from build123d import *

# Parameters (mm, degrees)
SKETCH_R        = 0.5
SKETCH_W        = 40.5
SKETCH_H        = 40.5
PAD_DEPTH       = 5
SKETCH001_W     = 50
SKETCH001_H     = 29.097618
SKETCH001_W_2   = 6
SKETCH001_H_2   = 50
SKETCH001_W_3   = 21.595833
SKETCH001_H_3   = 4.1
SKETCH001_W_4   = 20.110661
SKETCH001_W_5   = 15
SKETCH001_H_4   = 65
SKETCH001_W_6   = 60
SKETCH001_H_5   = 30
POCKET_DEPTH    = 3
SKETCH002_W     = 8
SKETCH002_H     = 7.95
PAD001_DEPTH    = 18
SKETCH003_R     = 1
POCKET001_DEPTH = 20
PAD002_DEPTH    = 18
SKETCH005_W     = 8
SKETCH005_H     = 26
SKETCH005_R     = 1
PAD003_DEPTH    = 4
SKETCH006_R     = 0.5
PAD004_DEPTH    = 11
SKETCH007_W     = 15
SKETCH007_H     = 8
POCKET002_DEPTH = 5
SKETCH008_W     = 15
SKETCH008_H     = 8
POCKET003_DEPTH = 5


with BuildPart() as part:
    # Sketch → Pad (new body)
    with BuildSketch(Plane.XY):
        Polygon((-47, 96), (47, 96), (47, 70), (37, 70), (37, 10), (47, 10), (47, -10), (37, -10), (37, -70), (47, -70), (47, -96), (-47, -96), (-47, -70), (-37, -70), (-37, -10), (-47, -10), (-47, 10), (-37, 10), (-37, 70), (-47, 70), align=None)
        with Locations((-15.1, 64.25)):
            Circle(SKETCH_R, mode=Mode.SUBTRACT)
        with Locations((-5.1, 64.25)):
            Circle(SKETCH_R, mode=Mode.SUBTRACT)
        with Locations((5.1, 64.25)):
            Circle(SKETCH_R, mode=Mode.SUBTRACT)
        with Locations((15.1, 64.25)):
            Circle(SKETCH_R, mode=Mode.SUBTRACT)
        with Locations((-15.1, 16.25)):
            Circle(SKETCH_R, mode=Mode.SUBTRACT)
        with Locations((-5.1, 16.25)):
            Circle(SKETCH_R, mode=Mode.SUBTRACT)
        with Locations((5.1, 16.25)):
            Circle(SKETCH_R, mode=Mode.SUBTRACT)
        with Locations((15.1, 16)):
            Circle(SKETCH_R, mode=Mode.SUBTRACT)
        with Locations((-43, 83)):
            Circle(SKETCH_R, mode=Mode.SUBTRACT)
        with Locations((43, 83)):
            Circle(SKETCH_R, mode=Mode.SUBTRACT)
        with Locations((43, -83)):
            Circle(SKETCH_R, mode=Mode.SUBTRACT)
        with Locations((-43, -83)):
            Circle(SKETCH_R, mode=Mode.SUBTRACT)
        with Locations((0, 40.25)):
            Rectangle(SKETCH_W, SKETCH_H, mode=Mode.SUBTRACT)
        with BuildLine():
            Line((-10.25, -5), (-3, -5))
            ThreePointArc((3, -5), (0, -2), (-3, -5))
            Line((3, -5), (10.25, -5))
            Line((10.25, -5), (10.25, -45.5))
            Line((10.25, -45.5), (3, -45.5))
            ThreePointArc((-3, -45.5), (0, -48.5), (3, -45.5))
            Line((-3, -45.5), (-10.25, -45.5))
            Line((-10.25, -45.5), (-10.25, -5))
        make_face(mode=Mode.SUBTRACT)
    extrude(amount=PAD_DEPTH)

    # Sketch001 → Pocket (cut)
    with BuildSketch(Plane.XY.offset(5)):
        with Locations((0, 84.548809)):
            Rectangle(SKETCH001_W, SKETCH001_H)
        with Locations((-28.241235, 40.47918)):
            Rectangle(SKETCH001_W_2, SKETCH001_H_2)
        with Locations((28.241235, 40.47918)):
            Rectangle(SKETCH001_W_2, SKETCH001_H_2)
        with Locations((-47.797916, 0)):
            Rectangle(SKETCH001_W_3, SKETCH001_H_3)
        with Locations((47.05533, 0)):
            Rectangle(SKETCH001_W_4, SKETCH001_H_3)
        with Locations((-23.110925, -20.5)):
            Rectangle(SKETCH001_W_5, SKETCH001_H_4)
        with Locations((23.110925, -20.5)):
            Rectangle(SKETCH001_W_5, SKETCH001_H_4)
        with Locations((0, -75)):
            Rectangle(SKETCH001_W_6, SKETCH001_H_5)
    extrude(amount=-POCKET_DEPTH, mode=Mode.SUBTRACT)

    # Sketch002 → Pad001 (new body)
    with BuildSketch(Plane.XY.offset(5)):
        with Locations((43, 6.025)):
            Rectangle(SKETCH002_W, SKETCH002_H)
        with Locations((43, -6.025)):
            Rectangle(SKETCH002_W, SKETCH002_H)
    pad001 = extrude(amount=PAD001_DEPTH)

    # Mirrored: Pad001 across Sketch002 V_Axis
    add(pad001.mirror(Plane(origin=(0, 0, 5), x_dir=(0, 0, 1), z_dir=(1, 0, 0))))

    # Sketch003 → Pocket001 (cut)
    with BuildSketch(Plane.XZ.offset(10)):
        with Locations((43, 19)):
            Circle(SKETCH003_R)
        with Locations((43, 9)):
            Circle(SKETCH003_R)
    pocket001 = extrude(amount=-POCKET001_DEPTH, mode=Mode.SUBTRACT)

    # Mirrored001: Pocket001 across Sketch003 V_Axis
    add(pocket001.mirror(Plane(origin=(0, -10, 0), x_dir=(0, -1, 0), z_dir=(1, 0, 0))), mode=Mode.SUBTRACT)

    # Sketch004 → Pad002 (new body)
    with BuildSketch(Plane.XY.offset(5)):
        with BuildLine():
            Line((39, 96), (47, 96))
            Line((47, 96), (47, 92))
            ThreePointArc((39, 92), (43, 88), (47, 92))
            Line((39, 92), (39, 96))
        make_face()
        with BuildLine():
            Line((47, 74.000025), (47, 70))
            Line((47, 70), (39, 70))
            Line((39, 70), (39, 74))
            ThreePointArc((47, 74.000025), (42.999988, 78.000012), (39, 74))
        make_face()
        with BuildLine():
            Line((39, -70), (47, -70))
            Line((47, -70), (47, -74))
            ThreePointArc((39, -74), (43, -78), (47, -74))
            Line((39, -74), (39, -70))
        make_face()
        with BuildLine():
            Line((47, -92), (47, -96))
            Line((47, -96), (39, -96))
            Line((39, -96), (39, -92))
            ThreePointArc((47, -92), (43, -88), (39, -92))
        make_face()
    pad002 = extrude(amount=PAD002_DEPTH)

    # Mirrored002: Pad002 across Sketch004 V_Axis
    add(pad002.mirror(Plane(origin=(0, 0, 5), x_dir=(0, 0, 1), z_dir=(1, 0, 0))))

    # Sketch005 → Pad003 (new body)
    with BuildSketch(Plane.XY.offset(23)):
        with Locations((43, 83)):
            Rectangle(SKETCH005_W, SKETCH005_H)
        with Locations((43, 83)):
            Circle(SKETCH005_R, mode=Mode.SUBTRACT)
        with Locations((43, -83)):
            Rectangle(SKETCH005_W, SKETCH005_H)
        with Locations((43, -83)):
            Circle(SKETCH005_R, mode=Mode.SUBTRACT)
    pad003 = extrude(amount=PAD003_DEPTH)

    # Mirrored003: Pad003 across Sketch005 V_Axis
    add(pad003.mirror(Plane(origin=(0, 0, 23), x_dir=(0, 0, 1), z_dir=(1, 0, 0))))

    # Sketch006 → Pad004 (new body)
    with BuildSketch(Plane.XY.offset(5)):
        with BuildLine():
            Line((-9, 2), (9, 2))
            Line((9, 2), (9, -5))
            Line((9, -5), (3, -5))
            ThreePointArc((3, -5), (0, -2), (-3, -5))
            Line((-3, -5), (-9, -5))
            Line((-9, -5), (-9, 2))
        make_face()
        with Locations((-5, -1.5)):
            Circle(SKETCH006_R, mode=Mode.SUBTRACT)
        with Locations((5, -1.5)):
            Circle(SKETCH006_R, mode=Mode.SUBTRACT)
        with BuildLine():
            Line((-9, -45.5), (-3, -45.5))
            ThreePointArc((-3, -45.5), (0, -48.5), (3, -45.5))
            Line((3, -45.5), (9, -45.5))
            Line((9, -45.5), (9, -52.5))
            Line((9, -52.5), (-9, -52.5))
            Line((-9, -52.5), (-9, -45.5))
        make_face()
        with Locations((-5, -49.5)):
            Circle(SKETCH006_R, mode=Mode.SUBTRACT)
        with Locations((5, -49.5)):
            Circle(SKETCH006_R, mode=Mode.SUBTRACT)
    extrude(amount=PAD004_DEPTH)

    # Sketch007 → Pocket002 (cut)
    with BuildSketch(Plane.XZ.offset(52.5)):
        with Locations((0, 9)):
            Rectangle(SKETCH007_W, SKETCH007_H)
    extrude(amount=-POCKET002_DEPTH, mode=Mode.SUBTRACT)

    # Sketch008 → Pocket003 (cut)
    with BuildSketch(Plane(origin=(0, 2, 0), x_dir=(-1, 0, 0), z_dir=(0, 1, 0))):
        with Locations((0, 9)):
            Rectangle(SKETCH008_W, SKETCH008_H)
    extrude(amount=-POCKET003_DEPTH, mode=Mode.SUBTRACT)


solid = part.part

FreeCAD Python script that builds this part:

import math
import FreeCAD as App
import Part
import Sketcher
from FreeCAD import Vector

doc = App.newDocument("Part")
body = doc.addObject("PartDesign::Body", "Body")

sketch1 = body.newObject("Sketcher::SketchObject", "Sketch")
sketch1.AttachmentSupport = (doc.getObject("XY_Plane"), [""])
sketch1.MapMode = "FlatFace"
sketch1.addGeometry([
    Part.LineSegment(Vector(47, 96, 0), Vector(-47, 96, 0)),
    Part.LineSegment(Vector(-47, 96, 0), Vector(-47, 70, 0)),
    Part.LineSegment(Vector(-47, 70, 0), Vector(-37, 70, 0)),
    Part.LineSegment(Vector(-37, 70, 0), Vector(-37, 10, 0)),
    Part.LineSegment(Vector(-37, 10, 0), Vector(-47, 10, 0)),
    Part.LineSegment(Vector(-47, 10, 0), Vector(-47, -10, 0)),
    Part.LineSegment(Vector(-47, -10, 0), Vector(-37, -10, 0)),
    Part.LineSegment(Vector(-37, -10, 0), Vector(-37, -70, 0)),
    Part.LineSegment(Vector(-37, -70, 0), Vector(-47, -70, 0)),
    Part.LineSegment(Vector(-47, -70, 0), Vector(-47, -96, 0)),
    Part.LineSegment(Vector(-47, -96, 0), Vector(47, -96, 0)),
    Part.LineSegment(Vector(47, -96, 0), Vector(47, -70, 0)),
    Part.LineSegment(Vector(47, -70, 0), Vector(37, -70, 0)),
    Part.LineSegment(Vector(37, -70, 0), Vector(37, -10, 0)),
    Part.LineSegment(Vector(37, -10, 0), Vector(47, -10, 0)),
    Part.LineSegment(Vector(47, -10, 0), Vector(47, 10, 0)),
    Part.LineSegment(Vector(47, 10, 0), Vector(37, 10, 0)),
    Part.LineSegment(Vector(37, 10, 0), Vector(37, 70, 0)),
    Part.LineSegment(Vector(37, 70, 0), Vector(47, 70, 0)),
    Part.LineSegment(Vector(47, 70, 0), Vector(47, 96, 0)),
    Part.Circle(Vector(43, -83, 0), Vector(0, 0, 1), 0.5),
    Part.Circle(Vector(-43, -83, 0), Vector(0, 0, 1), 0.5),
    Part.LineSegment(Vector(-10.2, -5, 0), Vector(-3, -5, 0)),
    Part.ArcOfCircle(Part.Circle(Vector(0, -5, 0), Vector(0, 0, 1), 3), math.radians(0), math.radians(180)),
    Part.LineSegment(Vector(3, -5, 0), Vector(10.2, -5, 0)),
    Part.LineSegment(Vector(10.2, -5, 0), Vector(10.2, -45.5, 0)),
    Part.LineSegment(Vector(10.2, -45.5, 0), Vector(3, -45.5, 0)),
    Part.ArcOfCircle(Part.Circle(Vector(0, -45.5, 0), Vector(0, 0, 1), 3), math.radians(180), math.radians(360)),
    Part.LineSegment(Vector(-3, -45.5, 0), Vector(-10.2, -45.5, 0)),
    Part.LineSegment(Vector(-10.2, -45.5, 0), Vector(-10.2, -5, 0)),
    Part.Circle(Vector(15.1, 16, 0), Vector(0, 0, 1), 0.5),
    Part.Circle(Vector(5.1, 16.2, 0), Vector(0, 0, 1), 0.5),
    Part.Circle(Vector(43, 83, 0), Vector(0, 0, 1), 0.5),
    Part.Circle(Vector(15.1, 64.2, 0), Vector(0, 0, 1), 0.5),
    Part.Circle(Vector(5.1, 64.2, 0), Vector(0, 0, 1), 0.5),
    Part.Circle(Vector(-5.1, 16.2, 0), Vector(0, 0, 1), 0.5),
    Part.Circle(Vector(-15.1, 16.2, 0), Vector(0, 0, 1), 0.5),
    Part.LineSegment(Vector(-20.2, 20, 0), Vector(-20.2, 60.5, 0)),
    Part.LineSegment(Vector(-20.2, 60.5, 0), Vector(20.2, 60.5, 0)),
    Part.LineSegment(Vector(20.2, 60.5, 0), Vector(20.2, 20, 0)),
    Part.LineSegment(Vector(20.2, 20, 0), Vector(-20.2, 20, 0)),
    Part.Circle(Vector(-5.1, 64.2, 0), Vector(0, 0, 1), 0.5),
    Part.Circle(Vector(-15.1, 64.2, 0), Vector(0, 0, 1), 0.5),
    Part.Circle(Vector(-43, 83, 0), Vector(0, 0, 1), 0.5),
], False)
sketch1.addConstraint([
    Sketcher.Constraint("Coincident", 0, 2, 1, 1),
    Sketcher.Constraint("Coincident", 1, 2, 2, 1),
    Sketcher.Constraint("Coincident", 2, 2, 3, 1),
    Sketcher.Constraint("Coincident", 3, 2, 4, 1),
    Sketcher.Constraint("Coincident", 4, 2, 5, 1),
    Sketcher.Constraint("Coincident", 5, 2, 6, 1),
    Sketcher.Constraint("Coincident", 6, 2, 7, 1),
    Sketcher.Constraint("Coincident", 7, 2, 8, 1),
    Sketcher.Constraint("Coincident", 8, 2, 9, 1),
    Sketcher.Constraint("Coincident", 9, 2, 10, 1),
    Sketcher.Constraint("Coincident", 10, 2, 11, 1),
    Sketcher.Constraint("Coincident", 11, 2, 12, 1),
    Sketcher.Constraint("Coincident", 12, 2, 13, 1),
    Sketcher.Constraint("Coincident", 13, 2, 14, 1),
    Sketcher.Constraint("Coincident", 14, 2, 15, 1),
    Sketcher.Constraint("Coincident", 15, 2, 16, 1),
    Sketcher.Constraint("Coincident", 16, 2, 17, 1),
    Sketcher.Constraint("Coincident", 17, 2, 18, 1),
    Sketcher.Constraint("Coincident", 18, 2, 19, 1),
    Sketcher.Constraint("Coincident", 19, 2, 0, 1),
    Sketcher.Constraint("Coincident", 22, 2, 23, 2),
    Sketcher.Constraint("Coincident", 23, 1, 24, 1),
    Sketcher.Constraint("Coincident", 24, 2, 25, 1),
    Sketcher.Constraint("Coincident", 25, 2, 26, 1),
    Sketcher.Constraint("Coincident", 26, 2, 27, 2),
    Sketcher.Constraint("Coincident", 27, 1, 28, 1),
    Sketcher.Constraint("Coincident", 28, 2, 29, 1),
    Sketcher.Constraint("Coincident", 29, 2, 22, 1),
    Sketcher.Constraint("Coincident", 37, 2, 38, 1),
    Sketcher.Constraint("Coincident", 38, 2, 39, 1),
    Sketcher.Constraint("Coincident", 39, 2, 40, 1),
    Sketcher.Constraint("Coincident", 40, 2, 37, 1),
    Sketcher.Constraint("Horizontal", 0),
    Sketcher.Constraint("Vertical", 1),
    Sketcher.Constraint("Horizontal", 2),
    Sketcher.Constraint("Vertical", 3),
    Sketcher.Constraint("Horizontal", 4),
    Sketcher.Constraint("Vertical", 5),
    Sketcher.Constraint("Horizontal", 6),
    Sketcher.Constraint("Vertical", 7),
    Sketcher.Constraint("Horizontal", 8),
    Sketcher.Constraint("Vertical", 9),
    Sketcher.Constraint("Horizontal", 10),
    Sketcher.Constraint("Vertical", 11),
    Sketcher.Constraint("Horizontal", 12),
    Sketcher.Constraint("Vertical", 13),
    Sketcher.Constraint("Horizontal", 14),
    Sketcher.Constraint("Vertical", 15),
    Sketcher.Constraint("Horizontal", 16),
    Sketcher.Constraint("Vertical", 17),
    Sketcher.Constraint("Horizontal", 18),
    Sketcher.Constraint("Vertical", 19),
    Sketcher.Constraint("Horizontal", 22),
    Sketcher.Constraint("Horizontal", 24),
    Sketcher.Constraint("Vertical", 25),
    Sketcher.Constraint("Horizontal", 26),
    Sketcher.Constraint("Horizontal", 28),
    Sketcher.Constraint("Vertical", 29),
    Sketcher.Constraint("Vertical", 37),
    Sketcher.Constraint("Horizontal", 38),
    Sketcher.Constraint("Vertical", 39),
    Sketcher.Constraint("Horizontal", 40),
    Sketcher.Constraint("Equal", 20, 21),
    Sketcher.Constraint("Equal", 23, 27),
    Sketcher.Constraint("Equal", 21, 30),
    Sketcher.Constraint("Equal", 30, 31),
    Sketcher.Constraint("Equal", 31, 32),
    Sketcher.Constraint("Equal", 32, 33),
    Sketcher.Constraint("Equal", 33, 34),
    Sketcher.Constraint("Equal", 34, 35),
    Sketcher.Constraint("Equal", 35, 36),
    Sketcher.Constraint("Equal", 36, 41),
    Sketcher.Constraint("Equal", 41, 42),
    Sketcher.Constraint("Equal", 42, 43),
    Sketcher.Constraint("Symmetric", 21, 3, 32, 3, -1, 1),
    Sketcher.Constraint("Symmetric", 20, 3, 43, 3, -1, 1),
    Sketcher.Constraint("Symmetric", 0, 2, 10, 2, -1, 1),
    Sketcher.Constraint("Symmetric", 2, 2, 12, 2, -1, 1),
    Sketcher.Constraint("Symmetric", 4, 2, 14, 2, -1, 1),
    Sketcher.Constraint("Symmetric", 6, 2, 16, 2, -1, 1),
    Sketcher.Constraint("Symmetric", 8, 2, 18, 2, -1, 1),
    Sketcher.Constraint("Symmetric", 20, 3, 21, 3, -2),
    Sketcher.Constraint("Symmetric", 31, 3, 35, 3, -2),
    Sketcher.Constraint("Symmetric", 34, 3, 41, 3, -2),
    Sketcher.Constraint("Symmetric", 33, 3, 42, 3, -2),
    Sketcher.Constraint("Symmetric", 8, 2, 11, 2, -2),
    Sketcher.Constraint("Symmetric", 6, 2, 13, 2, -2),
    Sketcher.Constraint("Symmetric", 22, 2, 23, 1, -2),
    Sketcher.Constraint("Symmetric", 26, 2, 27, 1, -2),
    Sketcher.Constraint("Horizontal", 33, 3, 34, 3),
    Sketcher.Constraint("Horizontal", 35, 3, 36, 3),
    Sketcher.Constraint("Horizontal", 23, 3, 22, 2),
    Sketcher.Constraint("Horizontal", 27, 3, 25, 2),
    Sketcher.Constraint("Vertical", 30, 3, 33, 3),
    Sketcher.Constraint("Vertical", 31, 3, 34, 3),
    Sketcher.Constraint("Vertical", 36, 3, 42, 3),
    Sketcher.Constraint("Vertical", 1, 2, 4, 2),
    Sketcher.Constraint("Equal", 22, 24),
    Sketcher.Constraint("Equal", 40, 25),
    Sketcher.Constraint("Equal", 29, 37),
    Sketcher.Constraint("Diameter", 20, 1.0),
    Sketcher.Constraint("Radius", 23, 3.0),
    Sketcher.Constraint("DistanceX", 0, 2, 0, 1, 94.0),
    Sketcher.Constraint("DistanceX", 2, 1, 2, 2, 10.0),
    Sketcher.Constraint("DistanceY", 1, 2, 1, 1, 26.0),
    Sketcher.Constraint("DistanceY", 3, 2, 3, 1, 60.0),
    Sketcher.Constraint("DistanceY", 5, 2, 5, 1, 20.0),
    Sketcher.Constraint("DistanceX", 38, 1, 38, 2, 40.5),
    Sketcher.Constraint("DistanceX", -1, 1, 20, 3, 43.0),
    Sketcher.Constraint("DistanceY", 20, 3, -1, 1, 83.0),
    Sketcher.Constraint("DistanceY", 23, 3, -1, 1, 5.0),
    Sketcher.Constraint("DistanceY", -1, 1, 30, 3, 16.0),
    Sketcher.Constraint("DistanceY", -1, 1, 39, 2, 20.0),
    Sketcher.Constraint("DistanceX", 31, 3, 30, 3, 10.0),
    Sketcher.Constraint("DistanceY", 31, 3, 33, 3, 48.0),
    Sketcher.Constraint("DistanceX", 24, 2, 39, 2, 10.0),
    Sketcher.Constraint("DistanceX", 40, 2, 29, 2, 10.0),
    Sketcher.Constraint("DistanceX", -1, 1, 30, 3, 15.1),
    Sketcher.Constraint("DistanceY", -1, 1, 31, 3, 16.25),
])
pad1 = body.newObject("PartDesign::Pad", "Pad")
pad1.Profile = sketch1
pad1.Length = 5

sketch2 = body.newObject("Sketcher::SketchObject", "Sketch001")
sketch2.AttachmentSupport = (doc.getObject("XY_Plane"), [""])
sketch2.MapMode = "FlatFace"
sketch2.AttachmentOffset = App.Placement(Vector(0, 0, 5), App.Rotation())
sketch2.addGeometry([
    Part.LineSegment(Vector(-25, 99.1, 0), Vector(-25, 70, 0)),
    Part.LineSegment(Vector(-25, 70, 0), Vector(25, 70, 0)),
    Part.LineSegment(Vector(25, 70, 0), Vector(25, 99.1, 0)),
    Part.LineSegment(Vector(25, 99.1, 0), Vector(-25, 99.1, 0)),
    Part.LineSegment(Vector(-31.2, 65.5, 0), Vector(-31.2, 15.5, 0)),
    Part.LineSegment(Vector(-31.2, 15.5, 0), Vector(-25.2, 15.5, 0)),
    Part.LineSegment(Vector(-25.2, 15.5, 0), Vector(-25.2, 65.5, 0)),
    Part.LineSegment(Vector(-25.2, 65.5, 0), Vector(-31.2, 65.5, 0)),
    Part.LineSegment(Vector(25.2, 65.5, 0), Vector(25.2, 15.5, 0)),
    Part.LineSegment(Vector(25.2, 15.5, 0), Vector(31.2, 15.5, 0)),
    Part.LineSegment(Vector(31.2, 15.5, 0), Vector(31.2, 65.5, 0)),
    Part.LineSegment(Vector(31.2, 65.5, 0), Vector(25.2, 65.5, 0)),
    Part.LineSegment(Vector(-58.6, 2, 0), Vector(-58.6, -2, 0)),
    Part.LineSegment(Vector(-58.6, -2, 0), Vector(-37, -2, 0)),
    Part.LineSegment(Vector(-37, -2, 0), Vector(-37, 2, 0)),
    Part.LineSegment(Vector(-37, 2, 0), Vector(-58.6, 2, 0)),
    Part.LineSegment(Vector(37, 2, 0), Vector(37, -2, 0)),
    Part.LineSegment(Vector(37, -2, 0), Vector(57.1, -2, 0)),
    Part.LineSegment(Vector(57.1, -2, 0), Vector(57.1, 2, 0)),
    Part.LineSegment(Vector(57.1, 2, 0), Vector(37, 2, 0)),
    Part.LineSegment(Vector(-30.6, 12, 0), Vector(-30.6, -53, 0)),
    Part.LineSegment(Vector(-30.6, -53, 0), Vector(-15.6, -53, 0)),
    Part.LineSegment(Vector(-15.6, -53, 0), Vector(-15.6, 12, 0)),
    Part.LineSegment(Vector(-15.6, 12, 0), Vector(-30.6, 12, 0)),
    Part.LineSegment(Vector(15.6, 12, 0), Vector(15.6, -53, 0)),
    Part.LineSegment(Vector(15.6, -53, 0), Vector(30.6, -53, 0)),
    Part.LineSegment(Vector(30.6, -53, 0), Vector(30.6, 12, 0)),
    Part.LineSegment(Vector(30.6, 12, 0), Vector(15.6, 12, 0)),
    Part.LineSegment(Vector(-30, -60, 0), Vector(-30, -90, 0)),
    Part.LineSegment(Vector(-30, -90, 0), Vector(30, -90, 0)),
    Part.LineSegment(Vector(30, -90, 0), Vector(30, -60, 0)),
    Part.LineSegment(Vector(30, -60, 0), Vector(-30, -60, 0)),
], False)
sketch2.addConstraint([
    Sketcher.Constraint("Coincident", 0, 2, 1, 1),
    Sketcher.Constraint("Coincident", 1, 2, 2, 1),
    Sketcher.Constraint("Coincident", 2, 2, 3, 1),
    Sketcher.Constraint("Coincident", 3, 2, 0, 1),
    Sketcher.Constraint("Coincident", 4, 2, 5, 1),
    Sketcher.Constraint("Coincident", 5, 2, 6, 1),
    Sketcher.Constraint("Coincident", 6, 2, 7, 1),
    Sketcher.Constraint("Coincident", 7, 2, 4, 1),
    Sketcher.Constraint("Coincident", 8, 2, 9, 1),
    Sketcher.Constraint("Coincident", 9, 2, 10, 1),
    Sketcher.Constraint("Coincident", 10, 2, 11, 1),
    Sketcher.Constraint("Coincident", 11, 2, 8, 1),
    Sketcher.Constraint("Coincident", 12, 2, 13, 1),
    Sketcher.Constraint("Coincident", 13, 2, 14, 1),
    Sketcher.Constraint("Coincident", 14, 2, 15, 1),
    Sketcher.Constraint("Coincident", 15, 2, 12, 1),
    Sketcher.Constraint("Coincident", 16, 2, 17, 1),
    Sketcher.Constraint("Coincident", 17, 2, 18, 1),
    Sketcher.Constraint("Coincident", 18, 2, 19, 1),
    Sketcher.Constraint("Coincident", 19, 2, 16, 1),
    Sketcher.Constraint("Coincident", 20, 2, 21, 1),
    Sketcher.Constraint("Coincident", 21, 2, 22, 1),
    Sketcher.Constraint("Coincident", 22, 2, 23, 1),
    Sketcher.Constraint("Coincident", 23, 2, 20, 1),
    Sketcher.Constraint("Coincident", 24, 2, 25, 1),
    Sketcher.Constraint("Coincident", 25, 2, 26, 1),
    Sketcher.Constraint("Coincident", 26, 2, 27, 1),
    Sketcher.Constraint("Coincident", 27, 2, 24, 1),
    Sketcher.Constraint("Coincident", 28, 2, 29, 1),
    Sketcher.Constraint("Coincident", 29, 2, 30, 1),
    Sketcher.Constraint("Coincident", 30, 2, 31, 1),
    Sketcher.Constraint("Coincident", 31, 2, 28, 1),
    Sketcher.Constraint("Vertical", 0),
    Sketcher.Constraint("Horizontal", 1),
    Sketcher.Constraint("Vertical", 2),
    Sketcher.Constraint("Horizontal", 3),
    Sketcher.Constraint("Vertical", 4),
    Sketcher.Constraint("Horizontal", 5),
    Sketcher.Constraint("Vertical", 6),
    Sketcher.Constraint("Horizontal", 7),
    Sketcher.Constraint("Vertical", 8),
    Sketcher.Constraint("Horizontal", 9),
    Sketcher.Constraint("Vertical", 10),
    Sketcher.Constraint("Horizontal", 11),
    Sketcher.Constraint("Vertical", 12),
    Sketcher.Constraint("Horizontal", 13),
    Sketcher.Constraint("Vertical", 14),
    Sketcher.Constraint("Horizontal", 15),
    Sketcher.Constraint("Vertical", 16),
    Sketcher.Constraint("Horizontal", 17),
    Sketcher.Constraint("Vertical", 18),
    Sketcher.Constraint("Horizontal", 19),
    Sketcher.Constraint("Vertical", 20),
    Sketcher.Constraint("Horizontal", 21),
    Sketcher.Constraint("Vertical", 22),
    Sketcher.Constraint("Horizontal", 23),
    Sketcher.Constraint("Vertical", 24),
    Sketcher.Constraint("Horizontal", 25),
    Sketcher.Constraint("Vertical", 26),
    Sketcher.Constraint("Horizontal", 27),
    Sketcher.Constraint("Vertical", 28),
    Sketcher.Constraint("Horizontal", 29),
    Sketcher.Constraint("Vertical", 30),
    Sketcher.Constraint("Horizontal", 31),
    Sketcher.Constraint("Symmetric", 14, 2, 16, 2, -1, 1),
    Sketcher.Constraint("Symmetric", 5, 2, 8, 2, -2),
    Sketcher.Constraint("Symmetric", 7, 2, 10, 2, -2),
    Sketcher.Constraint("Symmetric", 21, 2, 24, 2, -2),
    Sketcher.Constraint("Symmetric", 23, 2, 26, 2, -2),
    Sketcher.Constraint("Horizontal", 13, 2, 16, 2),
    Sketcher.Constraint("Horizontal", 15, 2, 18, 2),
    Sketcher.Constraint("Equal", 3, 4),
    Sketcher.Constraint("DistanceX", 1, 1, 1, 2, 50.0),
    Sketcher.Constraint("DistanceX", 5, 1, 5, 2, 6.0),
    Sketcher.Constraint("DistanceX", 21, 1, 21, 2, 15.0),
    Sketcher.Constraint("DistanceX", 29, 1, 29, 2, 60.0),
    Sketcher.Constraint("DistanceY", 20, 2, 20, 1, 65.0),
    Sketcher.Constraint("DistanceY", 28, 2, 28, 1, 30.0),
    Sketcher.Constraint("DistanceY", 12, 2, 12, 1, 4.1),
    Sketcher.Constraint("DistanceX", 0, 2, -1, 1, 25.0),
    Sketcher.Constraint("DistanceY", -1, 1, 0, 2, 70.0),
    Sketcher.Constraint("DistanceX", 13, 2, -1, 1, 37.0),
    Sketcher.Constraint("DistanceY", 20, 2, -1, 1, 53.0),
    Sketcher.Constraint("DistanceX", 28, 2, -1, 1, 30.0),
    Sketcher.Constraint("DistanceY", 28, 2, -1, 1, 90.0),
    Sketcher.Constraint("DistanceX", 17, 1, 17, 2, 20.110661),
    Sketcher.Constraint("DistanceX", 13, 1, 13, 2, 21.595833),
    Sketcher.Constraint("DistanceY", 0, 2, 0, 1, 29.097618),
    Sketcher.Constraint("DistanceY", -1, 1, 4, 2, 15.47918),
    Sketcher.Constraint("DistanceX", 5, 2, 8, 2, 50.48247),
    Sketcher.Constraint("DistanceX", 4, 2, 20, 2, 0.63031),
])
pocket1 = body.newObject("PartDesign::Pocket", "Pocket")
pocket1.Profile = sketch2
pocket1.Length = 3

sketch3 = body.newObject("Sketcher::SketchObject", "Sketch002")
sketch3.AttachmentSupport = (doc.getObject("XY_Plane"), [""])
sketch3.MapMode = "FlatFace"
sketch3.AttachmentOffset = App.Placement(Vector(0, 0, 5), App.Rotation())
sketch3.addGeometry([
    Part.LineSegment(Vector(39, 10, 0), Vector(39, 2, 0)),
    Part.LineSegment(Vector(39, 2, 0), Vector(47, 2, 0)),
    Part.LineSegment(Vector(47, 2, 0), Vector(47, 10, 0)),
    Part.LineSegment(Vector(47, 10, 0), Vector(39, 10, 0)),
    Part.LineSegment(Vector(39, -2, 0), Vector(39, -10, 0)),
    Part.LineSegment(Vector(39, -10, 0), Vector(47, -10, 0)),
    Part.LineSegment(Vector(47, -10, 0), Vector(47, -2, 0)),
    Part.LineSegment(Vector(47, -2, 0), Vector(39, -2, 0)),
], False)
sketch3.addConstraint([
    Sketcher.Constraint("Coincident", 0, 2, 1, 1),
    Sketcher.Constraint("Coincident", 1, 2, 2, 1),
    Sketcher.Constraint("Coincident", 2, 2, 3, 1),
    Sketcher.Constraint("Coincident", 3, 2, 0, 1),
    Sketcher.Constraint("Coincident", 4, 2, 5, 1),
    Sketcher.Constraint("Coincident", 5, 2, 6, 1),
    Sketcher.Constraint("Coincident", 6, 2, 7, 1),
    Sketcher.Constraint("Coincident", 7, 2, 4, 1),
    Sketcher.Constraint("Vertical", 0),
    Sketcher.Constraint("Horizontal", 1),
    Sketcher.Constraint("Vertical", 2),
    Sketcher.Constraint("Horizontal", 3),
    Sketcher.Constraint("Vertical", 4),
    Sketcher.Constraint("Horizontal", 5),
    Sketcher.Constraint("Vertical", 6),
    Sketcher.Constraint("Horizontal", 7),
    Sketcher.Constraint("Symmetric", 3, 2, 4, 2, -1),
    Sketcher.Constraint("Symmetric", 1, 2, 6, 2, -1),
    Sketcher.Constraint("DistanceX", 1, 1, 1, 2, 8.0),
    Sketcher.Constraint("DistanceX", -1, 1, 0, 2, 39.0),
    Sketcher.Constraint("DistanceY", -1, 1, 2, 2, 10.0),
    Sketcher.Constraint("DistanceY", 0, 2, 0, 1, 7.95),
])
pad2 = body.newObject("PartDesign::Pad", "Pad001")
pad2.Profile = sketch3
pad2.Length = 18
doc.recompute()

mirrored = body.newObject("PartDesign::Mirrored", "Mirrored")
mirrored.Originals = [pad2]
mirrored.MirrorPlane = (doc.getObject("YZ_Plane"), [""])
body.Tip = mirrored

sketch4 = body.newObject("Sketcher::SketchObject", "Sketch003")
sketch4.AttachmentSupport = (doc.getObject("XZ_Plane"), [""])
sketch4.MapMode = "FlatFace"
sketch4.AttachmentOffset = App.Placement(Vector(0, 0, 10), App.Rotation())
sketch4.addGeometry([
    Part.Circle(Vector(43, 19, 0), Vector(0, 0, 1), 1),
    Part.Circle(Vector(43, 9, 0), Vector(0, 0, 1), 1),
], False)
sketch4.addConstraint([
    Sketcher.Constraint("Equal", 0, 1),
    Sketcher.Constraint("Vertical", 0, 3, 1, 3),
    Sketcher.Constraint("Diameter", 0, 2.0),
    Sketcher.Constraint("DistanceX", -1, 1, 0, 3, 43.0),
    Sketcher.Constraint("DistanceY", -1, 1, 0, 3, 19.0),
    Sketcher.Constraint("DistanceY", -1, 1, 1, 3, 9.0),
])
pocket2 = body.newObject("PartDesign::Pocket", "Pocket001")
pocket2.Profile = sketch4
pocket2.Length = 20
doc.recompute()

mirrored2 = body.newObject("PartDesign::Mirrored", "Mirrored001")
mirrored2.Originals = [pocket2]
mirrored2.MirrorPlane = (doc.getObject("YZ_Plane"), [""])
body.Tip = mirrored2

sketch5 = body.newObject("Sketcher::SketchObject", "Sketch004")
sketch5.AttachmentSupport = (doc.getObject("XY_Plane"), [""])
sketch5.MapMode = "FlatFace"
sketch5.AttachmentOffset = App.Placement(Vector(0, 0, 5), App.Rotation())
sketch5.addGeometry([
    Part.LineSegment(Vector(47, 96, 0), Vector(39, 96, 0)),
    Part.LineSegment(Vector(39, 96, 0), Vector(39, 92, 0)),
    Part.ArcOfCircle(Part.Circle(Vector(43, 92, 0), Vector(0, 0, 1), 4), math.radians(180), math.radians(360)),
    Part.LineSegment(Vector(47, 92, 0), Vector(47, 96, 0)),
    Part.LineSegment(Vector(47, 70, 0), Vector(47, 74, 0)),
    Part.ArcOfCircle(Part.Circle(Vector(43, 74, 0), Vector(0, 0, 1), 4), math.radians(0), math.radians(180)),
    Part.LineSegment(Vector(39, 74, 0), Vector(39, 70, 0)),
    Part.LineSegment(Vector(39, 70, 0), Vector(47, 70, 0)),
    Part.LineSegment(Vector(47, -70, 0), Vector(39, -70, 0)),
    Part.LineSegment(Vector(39, -70, 0), Vector(39, -74, 0)),
    Part.ArcOfCircle(Part.Circle(Vector(43, -74, 0), Vector(0, 0, 1), 4), math.radians(180), math.radians(360)),
    Part.LineSegment(Vector(47, -74, 0), Vector(47, -70, 0)),
    Part.LineSegment(Vector(47, -96, 0), Vector(47, -92, 0)),
    Part.ArcOfCircle(Part.Circle(Vector(43, -92, 0), Vector(0, 0, 1), 4), math.radians(0), math.radians(180)),
    Part.LineSegment(Vector(39, -92, 0), Vector(39, -96, 0)),
    Part.LineSegment(Vector(39, -96, 0), Vector(47, -96, 0)),
], False)
sketch5.addConstraint([
    Sketcher.Constraint("Coincident", 0, 2, 1, 1),
    Sketcher.Constraint("Tangent", 1, 2, 2, 1),
    Sketcher.Constraint("Tangent", 2, 2, 3, 1),
    Sketcher.Constraint("Coincident", 3, 2, 0, 1),
    Sketcher.Constraint("Coincident", 4, 2, 5, 1),
    Sketcher.Constraint("Coincident", 5, 2, 6, 1),
    Sketcher.Constraint("Coincident", 6, 2, 7, 1),
    Sketcher.Constraint("Coincident", 7, 2, 4, 1),
    Sketcher.Constraint("Coincident", 8, 2, 9, 1),
    Sketcher.Constraint("Tangent", 9, 2, 10, 1),
    Sketcher.Constraint("Tangent", 10, 2, 11, 1),
    Sketcher.Constraint("Coincident", 11, 2, 8, 1),
    Sketcher.Constraint("Tangent", 12, 2, 13, 1),
    Sketcher.Constraint("Tangent", 13, 2, 14, 1),
    Sketcher.Constraint("Coincident", 14, 2, 15, 1),
    Sketcher.Constraint("Coincident", 15, 2, 12, 1),
    Sketcher.Constraint("Horizontal", 0),
    Sketcher.Constraint("Vertical", 1),
    Sketcher.Constraint("Vertical", 3),
    Sketcher.Constraint("Vertical", 4),
    Sketcher.Constraint("Vertical", 6),
    Sketcher.Constraint("Horizontal", 7),
    Sketcher.Constraint("Horizontal", 8),
    Sketcher.Constraint("Vertical", 9),
    Sketcher.Constraint("Vertical", 11),
    Sketcher.Constraint("Vertical", 12),
    Sketcher.Constraint("Vertical", 14),
    Sketcher.Constraint("Horizontal", 15),
    Sketcher.Constraint("Equal", 2, 5),
    Sketcher.Constraint("Equal", 5, 10),
    Sketcher.Constraint("Equal", 10, 13),
    Sketcher.Constraint("Symmetric", 2, 3, 13, 3, -1),
    Sketcher.Constraint("Symmetric", 6, 2, 8, 2, -1),
    Sketcher.Constraint("Vertical", 2, 3, 5, 3),
    Sketcher.Constraint("Equal", 3, 6),
    Sketcher.Constraint("Equal", 6, 9),
    Sketcher.Constraint("Equal", 11, 12),
    Sketcher.Constraint("Radius", 2, 4.0),
    Sketcher.Constraint("DistanceY", 1, 2, 1, 1, 4.0),
    Sketcher.Constraint("DistanceX", -1, 1, 2, 3, 43.0),
    Sketcher.Constraint("DistanceY", -1, 1, 2, 3, 92.0),
    Sketcher.Constraint("DistanceY", 10, 3, -1, 1, 74.0),
    Sketcher.Constraint("DistanceY", 4, 1, 4, 2, 4.000025),
    Sketcher.Constraint("DistanceY", -1, 1, 5, 3, 74.000012),
])
pad3 = body.newObject("PartDesign::Pad", "Pad002")
pad3.Profile = sketch5
pad3.Length = 18
doc.recompute()

mirrored3 = body.newObject("PartDesign::Mirrored", "Mirrored002")
mirrored3.Originals = [pad3]
mirrored3.MirrorPlane = (doc.getObject("YZ_Plane"), [""])
body.Tip = mirrored3

sketch6 = body.newObject("Sketcher::SketchObject", "Sketch005")
sketch6.AttachmentSupport = (doc.getObject("XY_Plane"), [""])
sketch6.MapMode = "FlatFace"
sketch6.AttachmentOffset = App.Placement(Vector(0, 0, 23), App.Rotation())
sketch6.addGeometry([
    Part.LineSegment(Vector(39, 96, 0), Vector(39, 70, 0)),
    Part.LineSegment(Vector(39, 70, 0), Vector(47, 70, 0)),
    Part.LineSegment(Vector(47, 70, 0), Vector(47, 96, 0)),
    Part.LineSegment(Vector(47, 96, 0), Vector(39, 96, 0)),
    Part.Circle(Vector(43, 83, 0), Vector(0, 0, 1), 1),
    Part.LineSegment(Vector(39, -70, 0), Vector(39, -96, 0)),
    Part.LineSegment(Vector(39, -96, 0), Vector(47, -96, 0)),
    Part.LineSegment(Vector(47, -96, 0), Vector(47, -70, 0)),
    Part.LineSegment(Vector(47, -70, 0), Vector(39, -70, 0)),
    Part.Circle(Vector(43, -83, 0), Vector(0, 0, 1), 1),
], False)
sketch6.addConstraint([
    Sketcher.Constraint("Coincident", 0, 2, 1, 1),
    Sketcher.Constraint("Coincident", 1, 2, 2, 1),
    Sketcher.Constraint("Coincident", 2, 2, 3, 1),
    Sketcher.Constraint("Coincident", 3, 2, 0, 1),
    Sketcher.Constraint("Coincident", 5, 2, 6, 1),
    Sketcher.Constraint("Coincident", 6, 2, 7, 1),
    Sketcher.Constraint("Coincident", 7, 2, 8, 1),
    Sketcher.Constraint("Coincident", 8, 2, 5, 1),
    Sketcher.Constraint("Vertical", 0),
    Sketcher.Constraint("Horizontal", 1),
    Sketcher.Constraint("Vertical", 2),
    Sketcher.Constraint("Horizontal", 3),
    Sketcher.Constraint("Vertical", 5),
    Sketcher.Constraint("Horizontal", 6),
    Sketcher.Constraint("Vertical", 7),
    Sketcher.Constraint("Horizontal", 8),
    Sketcher.Constraint("Equal", 4, 9),
    Sketcher.Constraint("Symmetric", 4, 3, 9, 3, -1),
    Sketcher.Constraint("Symmetric", 3, 2, 5, 2, -1),
    Sketcher.Constraint("Symmetric", 1, 2, 7, 2, -1),
    Sketcher.Constraint("Diameter", 4, 2.0),
    Sketcher.Constraint("DistanceX", 1, 1, 1, 2, 8.0),
    Sketcher.Constraint("DistanceY", 0, 2, 0, 1, 26.0),
    Sketcher.Constraint("DistanceX", -1, 1, 4, 3, 43.0),
    Sketcher.Constraint("DistanceY", -1, 1, 4, 3, 83.0),
    Sketcher.Constraint("DistanceX", -1, 1, 0, 2, 39.0),
    Sketcher.Constraint("DistanceY", -1, 1, 0, 2, 70.0),
])
pad4 = body.newObject("PartDesign::Pad", "Pad003")
pad4.Profile = sketch6
pad4.Length = 4
doc.recompute()

mirrored4 = body.newObject("PartDesign::Mirrored", "Mirrored003")
mirrored4.Originals = [pad4]
mirrored4.MirrorPlane = (doc.getObject("YZ_Plane"), [""])
body.Tip = mirrored4

sketch7 = body.newObject("Sketcher::SketchObject", "Sketch006")
sketch7.AttachmentSupport = (doc.getObject("XY_Plane"), [""])
sketch7.MapMode = "FlatFace"
sketch7.AttachmentOffset = App.Placement(Vector(0, 0, 5), App.Rotation())
sketch7.addGeometry([
    Part.LineSegment(Vector(9, 2, 0), Vector(-9, 2, 0)),
    Part.LineSegment(Vector(-9, 2, 0), Vector(-9, -5, 0)),
    Part.LineSegment(Vector(-9, -5, 0), Vector(-3, -5, 0)),
    Part.ArcOfCircle(Part.Circle(Vector(0, -5, 0), Vector(0, 0, 1), 3), math.radians(0), math.radians(180)),
    Part.LineSegment(Vector(3, -5, 0), Vector(9, -5, 0)),
    Part.LineSegment(Vector(9, -5, 0), Vector(9, 2, 0)),
    Part.Circle(Vector(5, -1.5, 0), Vector(0, 0, 1), 0.5),
    Part.Circle(Vector(-5, -1.5, 0), Vector(0, 0, 1), 0.5),
    Part.LineSegment(Vector(-3, -45.5, 0), Vector(-9, -45.5, 0)),
    Part.LineSegment(Vector(-9, -45.5, 0), Vector(-9, -52.5, 0)),
    Part.LineSegment(Vector(-9, -52.5, 0), Vector(9, -52.5, 0)),
    Part.LineSegment(Vector(9, -52.5, 0), Vector(9, -45.5, 0)),
    Part.LineSegment(Vector(9, -45.5, 0), Vector(3, -45.5, 0)),
    Part.ArcOfCircle(Part.Circle(Vector(0, -45.5, 0), Vector(0, 0, 1), 3), math.radians(180), math.radians(360)),
    Part.Circle(Vector(5, -49.5, 0), Vector(0, 0, 1), 0.5),
    Part.Circle(Vector(-5, -49.5, 0), Vector(0, 0, 1), 0.5),
], False)
sketch7.addConstraint([
    Sketcher.Constraint("Coincident", 0, 2, 1, 1),
    Sketcher.Constraint("Coincident", 1, 2, 2, 1),
    Sketcher.Constraint("Coincident", 2, 2, 3, 2),
    Sketcher.Constraint("Coincident", 3, 1, 4, 1),
    Sketcher.Constraint("Coincident", 4, 2, 5, 1),
    Sketcher.Constraint("Coincident", 5, 2, 0, 1),
    Sketcher.Constraint("Coincident", 8, 2, 9, 1),
    Sketcher.Constraint("Coincident", 9, 2, 10, 1),
    Sketcher.Constraint("Coincident", 10, 2, 11, 1),
    Sketcher.Constraint("Coincident", 11, 2, 12, 1),
    Sketcher.Constraint("Coincident", 12, 2, 13, 2),
    Sketcher.Constraint("Coincident", 13, 1, 8, 1),
    Sketcher.Constraint("Horizontal", 0),
    Sketcher.Constraint("Vertical", 1),
    Sketcher.Constraint("Horizontal", 2),
    Sketcher.Constraint("Horizontal", 4),
    Sketcher.Constraint("Vertical", 5),
    Sketcher.Constraint("Horizontal", 8),
    Sketcher.Constraint("Vertical", 9),
    Sketcher.Constraint("Horizontal", 10),
    Sketcher.Constraint("Vertical", 11),
    Sketcher.Constraint("Horizontal", 12),
    Sketcher.Constraint("Equal", 6, 7),
    Sketcher.Constraint("Equal", 3, 13),
    Sketcher.Constraint("Equal", 7, 14),
    Sketcher.Constraint("Equal", 14, 15),
    Sketcher.Constraint("Symmetric", 6, 3, 7, 3, -2),
    Sketcher.Constraint("Symmetric", 14, 3, 15, 3, -2),
    Sketcher.Constraint("Symmetric", 2, 2, 3, 1, -2),
    Sketcher.Constraint("Symmetric", 8, 2, 11, 2, -2),
    Sketcher.Constraint("PointOnObject", 13, 3, -2),
    Sketcher.Constraint("Horizontal", 3, 3, 1, 2),
    Sketcher.Constraint("Horizontal", 13, 3, 8, 2),
    Sketcher.Constraint("Vertical", 6, 3, 14, 3),
    Sketcher.Constraint("Vertical", 1, 2, 8, 2),
    Sketcher.Constraint("Vertical", 5, 2, 10, 2),
    Sketcher.Constraint("Equal", 5, 9),
    Sketcher.Constraint("Diameter", 6, 1.0),
    Sketcher.Constraint("Radius", 3, 3.0),
    Sketcher.Constraint("DistanceX", 0, 2, 0, 1, 18.0),
    Sketcher.Constraint("DistanceY", 1, 2, 1, 1, 7.0),
    Sketcher.Constraint("DistanceY", 3, 3, -1, 1, 5.0),
    Sketcher.Constraint("DistanceX", -1, 1, 6, 3, 5.0),
    Sketcher.Constraint("DistanceY", 13, 3, 6, 3, 44.0),
    Sketcher.Constraint("DistanceY", 14, 3, 13, 3, 4.0),
    Sketcher.Constraint("DistanceY", 6, 3, -1, 1, 1.5),
])
pad5 = body.newObject("PartDesign::Pad", "Pad004")
pad5.Profile = sketch7
pad5.Length = 11

sketch8 = body.newObject("Sketcher::SketchObject", "Sketch007")
sketch8.AttachmentSupport = (doc.getObject("XZ_Plane"), [""])
sketch8.MapMode = "FlatFace"
sketch8.AttachmentOffset = App.Placement(Vector(0, 0, 52.5), App.Rotation())
sketch8.addGeometry([
    Part.LineSegment(Vector(-8, 13, 0), Vector(-8, 5, 0)),
    Part.LineSegment(Vector(-8, 5, 0), Vector(8, 5, 0)),
    Part.LineSegment(Vector(8, 5, 0), Vector(8, 13, 0)),
    Part.LineSegment(Vector(8, 13, 0), Vector(-8, 13, 0)),
], False)
sketch8.addConstraint([
    Sketcher.Constraint("Coincident", 0, 2, 1, 1),
    Sketcher.Constraint("Coincident", 1, 2, 2, 1),
    Sketcher.Constraint("Coincident", 2, 2, 3, 1),
    Sketcher.Constraint("Coincident", 3, 2, 0, 1),
    Sketcher.Constraint("Vertical", 0),
    Sketcher.Constraint("Horizontal", 1),
    Sketcher.Constraint("Vertical", 2),
    Sketcher.Constraint("Horizontal", 3),
    Sketcher.Constraint("DistanceX", 1, 1, 1, 2, 15.0),
    Sketcher.Constraint("DistanceY", 0, 2, 0, 1, 8.0),
    Sketcher.Constraint("DistanceY", -1, 1, 0, 2, 5.0),
    Sketcher.Constraint("DistanceX", 0, 2, -1, 1, 7.5),
])
pocket3 = body.newObject("PartDesign::Pocket", "Pocket002")
pocket3.Profile = sketch8
pocket3.Length = 5

sketch9 = body.newObject("Sketcher::SketchObject", "Sketch008")
sketch9.AttachmentSupport = (doc.getObject("XZ_Plane"), [""])
sketch9.MapMode = "FlatFace"
sketch9.AttachmentOffset = App.Placement(Vector(0, 0, -2), App.Rotation())
sketch9.addGeometry([
    Part.LineSegment(Vector(8, 13, 0), Vector(8, 5, 0)),
    Part.LineSegment(Vector(8, 5, 0), Vector(-8, 5, 0)),
    Part.LineSegment(Vector(-8, 5, 0), Vector(-8, 13, 0)),
    Part.LineSegment(Vector(-8, 13, 0), Vector(8, 13, 0)),
], False)
sketch9.addConstraint([
    Sketcher.Constraint("Coincident", 0, 2, 1, 1),
    Sketcher.Constraint("Coincident", 1, 2, 2, 1),
    Sketcher.Constraint("Coincident", 2, 2, 3, 1),
    Sketcher.Constraint("Coincident", 3, 2, 0, 1),
    Sketcher.Constraint("Vertical", 0),
    Sketcher.Constraint("Horizontal", 1),
    Sketcher.Constraint("Vertical", 2),
    Sketcher.Constraint("Horizontal", 3),
    Sketcher.Constraint("DistanceX", 1, 2, 1, 1, 15.0),
    Sketcher.Constraint("DistanceY", 0, 2, 0, 1, 8.0),
    Sketcher.Constraint("DistanceY", -1, 1, 0, 2, 5.0),
    Sketcher.Constraint("DistanceX", -1, 1, 0, 2, 7.5),
])
pocket4 = body.newObject("PartDesign::Pocket", "Pocket003")
pocket4.Profile = sketch9
pocket4.Length = 5
pocket4.Reversed = True

doc.recompute()
